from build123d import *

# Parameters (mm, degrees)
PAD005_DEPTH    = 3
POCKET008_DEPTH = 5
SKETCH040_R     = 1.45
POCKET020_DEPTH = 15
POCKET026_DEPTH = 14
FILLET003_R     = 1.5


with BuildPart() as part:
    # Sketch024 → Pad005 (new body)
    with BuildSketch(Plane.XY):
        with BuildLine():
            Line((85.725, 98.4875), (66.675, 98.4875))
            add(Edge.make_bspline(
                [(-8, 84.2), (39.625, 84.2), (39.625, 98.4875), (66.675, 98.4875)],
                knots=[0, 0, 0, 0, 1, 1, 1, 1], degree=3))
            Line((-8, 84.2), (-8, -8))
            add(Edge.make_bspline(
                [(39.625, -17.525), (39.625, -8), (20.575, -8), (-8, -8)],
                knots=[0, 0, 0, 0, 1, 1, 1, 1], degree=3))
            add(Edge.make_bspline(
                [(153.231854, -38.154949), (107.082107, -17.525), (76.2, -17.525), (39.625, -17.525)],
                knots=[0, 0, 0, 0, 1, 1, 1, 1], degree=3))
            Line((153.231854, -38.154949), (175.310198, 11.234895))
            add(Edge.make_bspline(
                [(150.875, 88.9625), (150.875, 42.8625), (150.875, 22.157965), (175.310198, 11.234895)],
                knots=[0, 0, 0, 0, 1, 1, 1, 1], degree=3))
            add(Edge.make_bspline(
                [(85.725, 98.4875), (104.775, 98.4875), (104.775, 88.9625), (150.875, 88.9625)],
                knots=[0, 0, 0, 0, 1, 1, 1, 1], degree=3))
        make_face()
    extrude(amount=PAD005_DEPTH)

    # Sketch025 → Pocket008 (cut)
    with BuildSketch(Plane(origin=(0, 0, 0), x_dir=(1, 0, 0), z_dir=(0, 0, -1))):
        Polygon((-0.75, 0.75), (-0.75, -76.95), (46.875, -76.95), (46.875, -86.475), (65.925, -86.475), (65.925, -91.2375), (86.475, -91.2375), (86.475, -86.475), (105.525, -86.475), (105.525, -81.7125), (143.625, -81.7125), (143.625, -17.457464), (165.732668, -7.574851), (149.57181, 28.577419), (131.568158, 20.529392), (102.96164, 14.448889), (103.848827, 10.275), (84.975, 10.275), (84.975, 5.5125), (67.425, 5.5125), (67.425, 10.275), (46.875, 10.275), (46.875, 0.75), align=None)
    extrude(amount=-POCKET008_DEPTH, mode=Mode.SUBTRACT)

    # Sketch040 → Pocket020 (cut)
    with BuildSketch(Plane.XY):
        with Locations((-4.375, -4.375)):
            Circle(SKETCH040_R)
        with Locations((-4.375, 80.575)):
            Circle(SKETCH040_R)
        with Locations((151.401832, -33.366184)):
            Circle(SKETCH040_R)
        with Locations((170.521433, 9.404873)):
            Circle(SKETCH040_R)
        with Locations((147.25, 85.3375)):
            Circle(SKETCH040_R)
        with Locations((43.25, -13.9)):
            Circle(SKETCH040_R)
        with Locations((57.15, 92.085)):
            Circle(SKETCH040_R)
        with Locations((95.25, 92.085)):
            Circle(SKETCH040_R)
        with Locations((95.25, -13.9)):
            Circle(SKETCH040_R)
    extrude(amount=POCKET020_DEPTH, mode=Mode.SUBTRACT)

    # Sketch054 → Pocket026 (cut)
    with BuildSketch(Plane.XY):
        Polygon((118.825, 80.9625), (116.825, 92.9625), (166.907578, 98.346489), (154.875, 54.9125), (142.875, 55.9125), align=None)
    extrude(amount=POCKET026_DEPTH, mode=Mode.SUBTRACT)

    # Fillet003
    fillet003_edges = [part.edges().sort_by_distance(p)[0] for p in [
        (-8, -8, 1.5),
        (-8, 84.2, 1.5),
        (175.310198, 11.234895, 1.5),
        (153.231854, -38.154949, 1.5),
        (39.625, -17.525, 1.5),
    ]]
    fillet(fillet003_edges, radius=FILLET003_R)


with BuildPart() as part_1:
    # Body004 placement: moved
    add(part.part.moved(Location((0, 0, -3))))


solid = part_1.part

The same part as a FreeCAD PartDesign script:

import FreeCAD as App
import Part
import Sketcher

V = App.Vector
Q = App.Units.Quantity


def edges_at(feature, points):
    """Names of the edges that pass closest to the given points."""
    edges = feature.Shape.Edges
    near = lambda p: min(range(len(edges)), key=lambda i: edges[i].distToShape(Part.Vertex(*p))[0])
    return sorted({f"Edge{near(p) + 1}" for p in points})

doc = App.newDocument("Part")
params = doc.addObject("Spreadsheet::Sheet", "Params")
for row, (alias, value) in enumerate([
    ("pad1_length", "3 mm"),
    ("sketch2_width", "38.1 mm"),
    ("sketch2_height", "77.7 mm"),
    ("sketch2_length", "39.599999 mm"),
    ("sketch2_width2", "19.05 mm"),
    ("sketch2_width3", "20.55 mm"),
    ("pocket1_length", "5 mm"),
    ("sketch3_diameter", "2.9 mm"),
    ("pocket2_length", "15 mm"),
    ("pocket3_length", "14 mm"),
    ("fillet_radius", "1.5 mm"),
], start=1):
    params.set(f"A{row}", alias)
    params.set(f"B{row}", "=" + value)
    params.setAlias(f"B{row}", alias)

body = doc.addObject("PartDesign::Body", "Body")

# Sketch on XY plane
sketch1 = body.newObject("Sketcher::SketchObject", "Sketch")
sketch1.AttachmentSupport = (doc.getObject("XY_Plane"), [""])
sketch1.MapMode = "FlatFace"
sketch1.addGeometry([
    Part.LineSegment(V(85.725, 98.4875, 0), V(66.675, 98.4875, 0)),  # 0
    Part.BSplineCurve([V(-8, 84.2, 0), V(39.625, 84.2, 0), V(39.625, 98.4875, 0), V(66.675, 98.4875, 0)], [4, 4], [0, 1], False, 3, [1, 1, 1, 1], False),  # 1
    Part.LineSegment(V(-8, 84.2, 0), V(-8, -8, 0)),  # 2
    Part.BSplineCurve([V(39.625, -17.525, 0), V(39.625, -8, 0), V(20.575, -8, 0), V(-8, -8, 0)], [4, 4], [0, 1], False, 3, [1, 1, 1, 1], False),  # 3
    Part.BSplineCurve([V(153.231854, -38.154949, 0), V(107.082107, -17.525, 0), V(76.2, -17.525, 0), V(39.625, -17.525, 0)], [4, 4], [0, 1], False, 3, [1, 1, 1, 1], False),  # 4
    Part.LineSegment(V(153.231854, -38.154949, 0), V(175.310198, 11.234895, 0)),  # 5
    Part.BSplineCurve([V(150.875, 88.9625, 0), V(150.875, 42.8625, 0), V(150.875, 22.157965, 0), V(175.310198, 11.234895, 0)], [4, 4], [0, 1], False, 3, [1, 1, 1, 1], False),  # 6
    Part.BSplineCurve([V(85.725, 98.4875, 0), V(104.775, 98.4875, 0), V(104.775, 88.9625, 0), V(150.875, 88.9625, 0)], [4, 4], [0, 1], False, 3, [1, 1, 1, 1], False),  # 7
], False)
sketch1.addConstraint([
    Sketcher.Constraint("Block", 1),
    Sketcher.Constraint("Block", 3),
    Sketcher.Constraint("Block", 4),
    Sketcher.Constraint("Block", 6),
    Sketcher.Constraint("Block", 7),
    Sketcher.Constraint("Coincident", 0, 2, 1, 2),
    Sketcher.Constraint("Coincident", 1, 1, 2, 1),
    Sketcher.Constraint("Coincident", 2, 2, 3, 2),
    Sketcher.Constraint("Coincident", 4, 1, 5, 1),
    Sketcher.Constraint("Coincident", 5, 2, 6, 2),
    Sketcher.Constraint("Coincident", 7, 1, 0, 1),
])
pad1 = body.newObject("PartDesign::Pad", "Pad")
pad1.Profile = sketch1
pad1.setExpression("Length", "Params.pad1_length")

# Sketch on XY plane
sketch2 = body.newObject("Sketcher::SketchObject", "Sketch001")
sketch2.AttachmentSupport = (doc.getObject("XY_Plane"), [""])
sketch2.MapMode = "FlatFace"
sketch2.addGeometry([
    Part.LineSegment(V(-0.8, -0.8, 0), V(-0.8, 77, 0)),  # 0
    Part.LineSegment(V(-0.8, 77, 0), V(46.9, 77, 0)),  # 1
    Part.LineSegment(V(46.9, 77, 0), V(46.9, 86.5, 0)),  # 2
    Part.LineSegment(V(46.9, 86.5, 0), V(65.9, 86.5, 0)),  # 3
    Part.LineSegment(V(65.9, 86.5, 0), V(65.9, 91.2, 0)),  # 4
    Part.LineSegment(V(65.9, 91.2, 0), V(86.5, 91.2, 0)),  # 5
    Part.LineSegment(V(86.5, 91.2, 0), V(86.5, 86.5, 0)),  # 6
    Part.LineSegment(V(86.5, 86.5, 0), V(105.5, 86.5, 0)),  # 7
    Part.LineSegment(V(105.5, 86.5, 0), V(105.5, 81.7, 0)),  # 8
    Part.LineSegment(V(105.5, 81.7, 0), V(143.6, 81.7, 0)),  # 9
    Part.LineSegment(V(143.6, 81.7, 0), V(143.6, 17.5, 0)),  # 10
    Part.LineSegment(V(143.6, 17.5, 0), V(165.7, 7.6, 0)),  # 11
    Part.LineSegment(V(165.7, 7.6, 0), V(149.6, -28.6, 0)),  # 12
    Part.LineSegment(V(149.6, -28.6, 0), V(131.6, -20.5, 0)),  # 13
    Part.LineSegment(V(131.6, -20.5, 0), V(103, -14.4, 0)),  # 14
    Part.LineSegment(V(103, -14.4, 0), V(103.8, -10.3, 0)),  # 15
    Part.LineSegment(V(103.8, -10.3, 0), V(85, -10.3, 0)),  # 16
    Part.LineSegment(V(85, -10.3, 0), V(85, -5.5, 0)),  # 17
    Part.LineSegment(V(85, -5.5, 0), V(67.4, -5.5, 0)),  # 18
    Part.LineSegment(V(67.4, -5.5, 0), V(67.4, -10.3, 0)),  # 19
    Part.LineSegment(V(67.4, -10.3, 0), V(46.9, -10.3, 0)),  # 20
    Part.LineSegment(V(46.9, -10.3, 0), V(46.9, -0.8, 0)),  # 21
    Part.LineSegment(V(46.9, -0.8, 0), V(-0.8, -0.8, 0)),  # 22
], False)
sketch2.addConstraint([
    Sketcher.Constraint("Coincident", 0, 2, 1, 1),
    Sketcher.Constraint("Coincident", 1, 2, 2, 1),
    Sketcher.Constraint("Coincident", 2, 2, 3, 1),
    Sketcher.Constraint("Coincident", 3, 2, 4, 1),
    Sketcher.Constraint("Coincident", 4, 2, 5, 1),
    Sketcher.Constraint("Coincident", 5, 2, 6, 1),
    Sketcher.Constraint("Coincident", 6, 2, 7, 1),
    Sketcher.Constraint("Coincident", 7, 2, 8, 1),
    Sketcher.Constraint("Coincident", 8, 2, 9, 1),
    Sketcher.Constraint("Coincident", 9, 2, 10, 1),
    Sketcher.Constraint("Coincident", 10, 2, 11, 1),
    Sketcher.Constraint("Coincident", 11, 2, 12, 1),
    Sketcher.Constraint("Coincident", 12, 2, 13, 1),
    Sketcher.Constraint("Coincident", 13, 2, 14, 1),
    Sketcher.Constraint("Coincident", 14, 2, 15, 1),
    Sketcher.Constraint("Coincident", 15, 2, 16, 1),
    Sketcher.Constraint("Coincident", 16, 2, 17, 1),
    Sketcher.Constraint("Coincident", 17, 2, 18, 1),
    Sketcher.Constraint("Coincident", 18, 2, 19, 1),
    Sketcher.Constraint("Coincident", 19, 2, 20, 1),
    Sketcher.Constraint("Coincident", 20, 2, 21, 1),
    Sketcher.Constraint("Coincident", 21, 2, 22, 1),
    Sketcher.Constraint("Coincident", 22, 2, 0, 1),
    Sketcher.Constraint("Vertical", 0),
    Sketcher.Constraint("Horizontal", 1),
    Sketcher.Constraint("Vertical", 2),
    Sketcher.Constraint("Horizontal", 3),
    Sketcher.Constraint("Vertical", 4),
    Sketcher.Constraint("Horizontal", 5),
    Sketcher.Constraint("Vertical", 6),
    Sketcher.Constraint("Horizontal", 7),
    Sketcher.Constraint("Vertical", 8),
    Sketcher.Constraint("Horizontal", 9),
    Sketcher.Constraint("Vertical", 10),
    Sketcher.Constraint("Horizontal", 16),
    Sketcher.Constraint("Vertical", 17),
    Sketcher.Constraint("Horizontal", 18),
    Sketcher.Constraint("Vertical", 19),
    Sketcher.Constraint("Horizontal", 20),
    Sketcher.Constraint("Vertical", 21),
    Sketcher.Constraint("Horizontal", 22),
    Sketcher.Constraint("Perpendicular", 11, 12),
    Sketcher.Constraint("Perpendicular", 12, 13),
    Sketcher.Constraint("Perpendicular", 14, 15),
    Sketcher.Constraint("Horizontal", 3, 2, 6, 2),
    Sketcher.Constraint("Horizontal", 16, 2, 19, 2),
    Sketcher.Constraint("Vertical", 2, 2, 20, 2),
    Sketcher.Constraint("Equal", 3, 7),
    Sketcher.Constraint("Equal", 5, 20),
    Sketcher.Constraint("Equal", 6, 8),
    Sketcher.Constraint("Equal", 8, 17),
    Sketcher.Constraint("Equal", 2, 21),
    Sketcher.Constraint("Angle", 14, Q("168 deg")),
    Sketcher.Constraint("DistanceX", 9, 1, 9, 2, 38.1),
    Sketcher.Constraint("DistanceY", 0, 1, 0, 2, 77.7),
    Sketcher.Constraint("Distance", 12, 39.599999),
    Sketcher.Constraint("DistanceX", 3, 1, 3, 2, 19.05),
    Sketcher.Constraint("DistanceX", 5, 1, 5, 2, 20.55),
    Sketcher.Constraint("DistanceX", 18, 2, 18, 1, 17.55),
    Sketcher.Constraint("DistanceX", 1, 1, 1, 2, 47.625),
    Sketcher.Constraint("DistanceY", 2, 1, 2, 2, 9.525),
    Sketcher.Constraint("DistanceX", 0, 2, -1, 1, 0.75),
    Sketcher.Constraint("DistanceY", -1, 1, 0, 2, 76.95),
    Sketcher.Constraint("DistanceY", 4, 1, 4, 2, 4.7625),
    Sketcher.Constraint("DistanceX", 16, 2, 16, 1, 18.873827),
    Sketcher.Constraint("DistanceY", 10, 2, 10, 1, 64.255036),
    Sketcher.Constraint("DistanceY", -1, 1, 11, 2, 7.574851),
    Sketcher.Constraint("DistanceX", -1, 1, 12, 2, 149.57181),
    Sketcher.Constraint("DistanceX", -1, 1, 13, 2, 131.568158),
])
sketch2.setExpression("Constraints[53]", "Params.sketch2_width")
sketch2.setExpression("Constraints[54]", "Params.sketch2_height")
sketch2.setExpression("Constraints[55]", "Params.sketch2_length")
sketch2.setExpression("Constraints[56]", "Params.sketch2_width2")
sketch2.setExpression("Constraints[57]", "Params.sketch2_width3")
pocket1 = body.newObject("PartDesign::Pocket", "Pocket")
pocket1.Profile = sketch2
pocket1.setExpression("Length", "Params.pocket1_length")
pocket1.Reversed = True

# Sketch on XY plane
sketch3 = body.newObject("Sketcher::SketchObject", "Sketch002")
sketch3.AttachmentSupport = (doc.getObject("XY_Plane"), [""])
sketch3.MapMode = "FlatFace"
sketch3.addGeometry([
    Part.Circle(V(-4.4, -4.4, 0), V(0, 0, 1), 1.4),  # 0
    Part.Circle(V(-4.4, 80.6, 0), V(0, 0, 1), 1.4),  # 1
    Part.Circle(V(151.4, -33.4, 0), V(0, 0, 1), 1.4),  # 2
    Part.Circle(V(170.5, 9.4, 0), V(0, 0, 1), 1.4),  # 3
    Part.Circle(V(147.2, 85.3, 0), V(0, 0, 1), 1.4),  # 4
    Part.Circle(V(43.2, -13.9, 0), V(0, 0, 1), 1.4),  # 5
    Part.Circle(V(57.1, 92.1, 0), V(0, 0, 1), 1.4),  # 6
    Part.Circle(V(95.2, 92.1, 0), V(0, 0, 1), 1.4),  # 7
    Part.Circle(V(95.2, -13.9, 0), V(0, 0, 1), 1.4),  # 8
], False)
sketch3.addConstraint([
    Sketcher.Constraint("Equal", 0, 1),
    Sketcher.Constraint("Equal", 1, 2),
    Sketcher.Constraint("Equal", 2, 3),
    Sketcher.Constraint("Equal", 3, 4),
    Sketcher.Constraint("Equal", 4, 5),
    Sketcher.Constraint("Equal", 5, 6),
    Sketcher.Constraint("Equal", 6, 7),
    Sketcher.Constraint("Equal", 7, 8),
    Sketcher.Constraint("Horizontal", 6, 3, 7, 3),
    Sketcher.Constraint("Horizontal", 5, 3, 8, 3),
    Sketcher.Constraint("Vertical", 0, 3, 1, 3),
    Sketcher.Constraint("Vertical", 7, 3, 8, 3),
    Sketcher.Constraint("Diameter", 0, 2.9),
    Sketcher.Constraint("DistanceX", 5, 3, 4, 3, 104.0),
    Sketcher.Constraint("DistanceX", 7, 3, 4, 3, 52.0),
    Sketcher.Constraint("DistanceY", 5, 3, -1, 1, 13.9),
    Sketcher.Constraint("DistanceX", 6, 3, 4, 3, 90.1),
    Sketcher.Constraint("DistanceX", -1, 1, 4, 3, 147.25),
    Sketcher.Constraint("DistanceY", 0, 3, 1, 3, 84.95),
    Sketcher.Constraint("DistanceY", 1, 3, 6, 3, 11.51),
    Sketcher.Constraint("DistanceX", 0, 3, -1, 1, 4.375),
    Sketcher.Constraint("DistanceY", 0, 3, -1, 1, 4.375),
    Sketcher.Constraint("DistanceY", -1, 1, 4, 3, 85.3375),
    Sketcher.Constraint("DistanceX", 2, 3, 3, 3, 19.119601),
    Sketcher.Constraint("DistanceX", -1, 1, 2, 3, 151.401832),
    Sketcher.Constraint("DistanceY", 2, 3, -1, 1, 33.366184),
    Sketcher.Constraint("DistanceY", -1, 1, 3, 3, 9.404873),
])
sketch3.setExpression("Constraints[12]", "Params.sketch3_diameter")
pocket2 = body.newObject("PartDesign::Pocket", "Pocket001")
pocket2.Profile = sketch3
pocket2.setExpression("Length", "Params.pocket2_length")
pocket2.Reversed = True

# Sketch on XY plane
sketch4 = body.newObject("Sketcher::SketchObject", "Sketch003")
sketch4.AttachmentSupport = (doc.getObject("XY_Plane"), [""])
sketch4.MapMode = "FlatFace"
sketch4.addGeometry([
    Part.LineSegment(V(117, 93, 0), V(119, 81, 0)),  # 0
    Part.LineSegment(V(119, 81, 0), V(143, 56, 0)),  # 1
    Part.LineSegment(V(143, 56, 0), V(155, 55, 0)),  # 2
    Part.LineSegment(V(155, 55, 0), V(167, 98, 0)),  # 3
    Part.LineSegment(V(167, 98, 0), V(117, 93, 0)),  # 4
], False)
sketch4.addConstraint([
    Sketcher.Constraint("Coincident", 0, 2, 1, 1),
    Sketcher.Constraint("Coincident", 1, 2, 2, 1),
    Sketcher.Constraint("Coincident", 2, 2, 3, 1),
    Sketcher.Constraint("Coincident", 3, 2, 4, 1),
    Sketcher.Constraint("Coincident", 4, 2, 0, 1),
    Sketcher.Constraint("DistanceX", 1, 2, 2, 2, 12.0),
    Sketcher.Constraint("DistanceY", 2, 2, 1, 2, 1.0),
    Sketcher.Constraint("DistanceX", 4, 2, 0, 2, 2.0),
    Sketcher.Constraint("DistanceY", 0, 2, 4, 2, 12.0),
    Sketcher.Constraint("DistanceX", 0, 2, 1, 2, 24.05),
    Sketcher.Constraint("DistanceY", 1, 2, 0, 2, 25.05),
    Sketcher.Constraint("DistanceX", -1, 1, 0, 2, 118.825),
    Sketcher.Constraint("DistanceY", -1, 1, 0, 2, 80.9625),
    Sketcher.Constraint("DistanceX", -1, 1, 3, 2, 166.907578),
    Sketcher.Constraint("DistanceY", -1, 1, 3, 2, 98.346489),
])
pocket3 = body.newObject("PartDesign::Pocket", "Pocket002")
pocket3.Profile = sketch4
pocket3.setExpression("Length", "Params.pocket3_length")
pocket3.Reversed = True
doc.recompute()

fillet = body.newObject("PartDesign::Fillet", "Fillet")
fillet.Base = (pocket3, edges_at(pocket3, [
    (-8, -8, 1.5),
    (-8, 84.2, 1.5),
    (175.31, 11.235, 1.5),
    (153.232, -38.155, 1.5),
    (39.625, -17.525, 1.5),
]))
fillet.setExpression("Radius", "Params.fillet_radius")
body2 = doc.addObject("PartDesign::Body", "Body001")
doc.recompute()

body.Placement = App.Placement(V(0, 0, -3), App.Rotation(V(0, 0, 1), 0))
boolean = body2.newObject("PartDesign::Boolean", "Boolean")
boolean.Type = "Fuse"
boolean.addObjects([body])

doc.recompute()
